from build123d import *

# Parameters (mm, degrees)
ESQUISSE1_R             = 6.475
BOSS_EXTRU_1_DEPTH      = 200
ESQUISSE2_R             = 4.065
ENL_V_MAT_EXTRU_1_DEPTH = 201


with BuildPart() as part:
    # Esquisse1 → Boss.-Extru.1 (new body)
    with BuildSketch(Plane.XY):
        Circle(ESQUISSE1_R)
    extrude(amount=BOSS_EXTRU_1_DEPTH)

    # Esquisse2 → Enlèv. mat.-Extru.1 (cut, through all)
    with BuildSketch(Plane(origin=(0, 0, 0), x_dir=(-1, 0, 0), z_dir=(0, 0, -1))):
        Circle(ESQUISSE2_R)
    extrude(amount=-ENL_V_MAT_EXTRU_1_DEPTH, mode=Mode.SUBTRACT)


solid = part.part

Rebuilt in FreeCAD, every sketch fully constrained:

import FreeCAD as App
import Part
import Sketcher
Q = App.Units.Quantity

doc = App.newDocument("Part")
body = doc.addObject("PartDesign::Body", "Body")

# Sketch on XY plane
sketch1 = doc.addObject("Sketcher::SketchObject", "Sketch")
body.addObject(sketch1)
sketch1.AttachmentSupport = (doc.XY_Plane, [""])
sketch1.MapMode = "FlatFace"
sketch1.addGeometry(Part.Circle(App.Vector(0, 0, 0), App.Vector(0, 0, 1), 6), False)
sketch1.addConstraint(Sketcher.Constraint("Coincident", 0, 3, -1, 1))
sketch1.addConstraint(Sketcher.Constraint("Diameter", 0, Q("12.95 mm")))
pad1 = doc.addObject("PartDesign::Pad", "Pad")
body.addObject(pad1)
pad1.Profile = sketch1
pad1.Length = 200

# Sketch on XY plane
sketch2 = doc.addObject("Sketcher::SketchObject", "Sketch001")
body.addObject(sketch2)
sketch2.AttachmentSupport = (doc.XY_Plane, [""])
sketch2.MapMode = "FlatFace"
sketch2.addGeometry(Part.Circle(App.Vector(0, 0, 0), App.Vector(0, 0, 1), 4.1), False)
sketch2.addConstraint(Sketcher.Constraint("Coincident", 0, 3, -1, 1))
sketch2.addConstraint(Sketcher.Constraint("Diameter", 0, Q("8.13 mm")))
pocket1 = doc.addObject("PartDesign::Pocket", "Pocket")
body.addObject(pocket1)
pocket1.Profile = sketch2
pocket1.Type = "ThroughAll"
pocket1.Reversed = True

doc.recompute()
